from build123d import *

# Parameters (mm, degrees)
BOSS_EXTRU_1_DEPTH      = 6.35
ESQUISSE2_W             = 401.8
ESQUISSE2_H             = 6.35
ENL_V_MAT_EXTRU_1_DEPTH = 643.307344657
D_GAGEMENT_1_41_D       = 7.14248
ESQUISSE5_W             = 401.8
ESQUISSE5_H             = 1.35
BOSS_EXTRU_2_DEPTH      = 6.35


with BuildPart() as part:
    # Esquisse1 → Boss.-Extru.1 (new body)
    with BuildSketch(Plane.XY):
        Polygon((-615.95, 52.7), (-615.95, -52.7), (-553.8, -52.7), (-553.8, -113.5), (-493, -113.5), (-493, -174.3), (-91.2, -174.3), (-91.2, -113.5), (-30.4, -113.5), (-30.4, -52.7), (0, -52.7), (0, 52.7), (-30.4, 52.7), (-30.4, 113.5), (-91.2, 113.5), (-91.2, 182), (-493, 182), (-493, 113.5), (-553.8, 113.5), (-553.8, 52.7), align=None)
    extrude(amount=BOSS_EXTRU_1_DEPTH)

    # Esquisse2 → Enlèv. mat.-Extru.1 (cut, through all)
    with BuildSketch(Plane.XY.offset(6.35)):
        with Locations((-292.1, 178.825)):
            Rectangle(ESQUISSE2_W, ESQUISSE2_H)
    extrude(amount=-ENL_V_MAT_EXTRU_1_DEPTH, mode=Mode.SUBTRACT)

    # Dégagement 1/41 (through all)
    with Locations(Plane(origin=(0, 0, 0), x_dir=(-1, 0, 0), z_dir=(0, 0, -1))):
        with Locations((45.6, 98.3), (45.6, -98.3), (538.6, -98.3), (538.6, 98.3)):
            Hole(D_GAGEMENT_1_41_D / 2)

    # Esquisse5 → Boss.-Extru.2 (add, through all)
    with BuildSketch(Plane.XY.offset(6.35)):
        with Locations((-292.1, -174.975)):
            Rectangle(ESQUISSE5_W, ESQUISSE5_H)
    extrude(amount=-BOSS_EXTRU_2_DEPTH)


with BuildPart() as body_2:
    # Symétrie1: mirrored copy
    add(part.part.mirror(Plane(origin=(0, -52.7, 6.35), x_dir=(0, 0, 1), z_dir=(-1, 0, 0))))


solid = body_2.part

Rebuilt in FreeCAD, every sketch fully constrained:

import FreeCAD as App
import Part
import Sketcher
from FreeCAD import Vector

doc = App.newDocument("Part")
body = doc.addObject("PartDesign::Body", "Body")

sketch1 = body.newObject("Sketcher::SketchObject", "Sketch")
sketch1.AttachmentSupport = (doc.getObject("XY_Plane"), [""])
sketch1.MapMode = "FlatFace"
sketch1.addGeometry(Part.LineSegment(Vector(-615.95, 52.7, 0), Vector(-615.95, -52.7, 0)), False)
sketch1.addGeometry(Part.LineSegment(Vector(-615.95, -52.7, 0), Vector(-553.8, -52.7, 0)), False)
sketch1.addGeometry(Part.LineSegment(Vector(-553.8, -52.7, 0), Vector(-553.8, -113.5, 0)), False)
sketch1.addGeometry(Part.LineSegment(Vector(-553.8, -113.5, 0), Vector(-493, -113.5, 0)), False)
sketch1.addGeometry(Part.LineSegment(Vector(-493, -113.5, 0), Vector(-493, -174.3, 0)), False)
sketch1.addGeometry(Part.LineSegment(Vector(-493, -174.3, 0), Vector(-91.2, -174.3, 0)), False)
sketch1.addGeometry(Part.LineSegment(Vector(-91.2, -174.3, 0), Vector(-91.2, -113.5, 0)), False)
sketch1.addGeometry(Part.LineSegment(Vector(-91.2, -113.5, 0), Vector(-30.4, -113.5, 0)), False)
sketch1.addGeometry(Part.LineSegment(Vector(-30.4, -113.5, 0), Vector(-30.4, -52.7, 0)), False)
sketch1.addGeometry(Part.LineSegment(Vector(-30.4, -52.7, 0), Vector(0, -52.7, 0)), False)
sketch1.addGeometry(Part.LineSegment(Vector(0, -52.7, 0), Vector(0, 52.7, 0)), False)
sketch1.addGeometry(Part.LineSegment(Vector(0, 52.7, 0), Vector(-30.4, 52.7, 0)), False)
sketch1.addGeometry(Part.LineSegment(Vector(-30.4, 52.7, 0), Vector(-30.4, 113.5, 0)), False)
sketch1.addGeometry(Part.LineSegment(Vector(-30.4, 113.5, 0), Vector(-91.2, 113.5, 0)), False)
sketch1.addGeometry(Part.LineSegment(Vector(-91.2, 113.5, 0), Vector(-91.2, 182, 0)), False)
sketch1.addGeometry(Part.LineSegment(Vector(-91.2, 182, 0), Vector(-493, 182, 0)), False)
sketch1.addGeometry(Part.LineSegment(Vector(-493, 182, 0), Vector(-493, 113.5, 0)), False)
sketch1.addGeometry(Part.LineSegment(Vector(-493, 113.5, 0), Vector(-553.8, 113.5, 0)), False)
sketch1.addGeometry(Part.LineSegment(Vector(-553.8, 113.5, 0), Vector(-553.8, 52.7, 0)), False)
sketch1.addGeometry(Part.LineSegment(Vector(-553.8, 52.7, 0), Vector(-615.95, 52.7, 0)), False)
sketch1.addConstraint(Sketcher.Constraint("Coincident", 0, 2, 1, 1))
sketch1.addConstraint(Sketcher.Constraint("Coincident", 1, 2, 2, 1))
sketch1.addConstraint(Sketcher.Constraint("Coincident", 2, 2, 3, 1))
sketch1.addConstraint(Sketcher.Constraint("Coincident", 3, 2, 4, 1))
sketch1.addConstraint(Sketcher.Constraint("Coincident", 4, 2, 5, 1))
sketch1.addConstraint(Sketcher.Constraint("Coincident", 5, 2, 6, 1))
sketch1.addConstraint(Sketcher.Constraint("Coincident", 6, 2, 7, 1))
sketch1.addConstraint(Sketcher.Constraint("Coincident", 7, 2, 8, 1))
sketch1.addConstraint(Sketcher.Constraint("Coincident", 8, 2, 9, 1))
sketch1.addConstraint(Sketcher.Constraint("Coincident", 9, 2, 10, 1))
sketch1.addConstraint(Sketcher.Constraint("Coincident", 10, 2, 11, 1))
sketch1.addConstraint(Sketcher.Constraint("Coincident", 11, 2, 12, 1))
sketch1.addConstraint(Sketcher.Constraint("Coincident", 12, 2, 13, 1))
sketch1.addConstraint(Sketcher.Constraint("Coincident", 13, 2, 14, 1))
sketch1.addConstraint(Sketcher.Constraint("Coincident", 14, 2, 15, 1))
sketch1.addConstraint(Sketcher.Constraint("Coincident", 15, 2, 16, 1))
sketch1.addConstraint(Sketcher.Constraint("Coincident", 16, 2, 17, 1))
sketch1.addConstraint(Sketcher.Constraint("Coincident", 17, 2, 18, 1))
sketch1.addConstraint(Sketcher.Constraint("Coincident", 18, 2, 19, 1))
sketch1.addConstraint(Sketcher.Constraint("Coincident", 19, 2, 0, 1))
sketch1.addConstraint(Sketcher.Constraint("Vertical", 0))
sketch1.addConstraint(Sketcher.Constraint("Horizontal", 1))
sketch1.addConstraint(Sketcher.Constraint("Vertical", 2))
sketch1.addConstraint(Sketcher.Constraint("Horizontal", 3))
sketch1.addConstraint(Sketcher.Constraint("Vertical", 4))
sketch1.addConstraint(Sketcher.Constraint("Horizontal", 5))
sketch1.addConstraint(Sketcher.Constraint("Vertical", 6))
sketch1.addConstraint(Sketcher.Constraint("Horizontal", 7))
sketch1.addConstraint(Sketcher.Constraint("Vertical", 8))
sketch1.addConstraint(Sketcher.Constraint("Horizontal", 9))
sketch1.addConstraint(Sketcher.Constraint("Vertical", 10))
sketch1.addConstraint(Sketcher.Constraint("Horizontal", 11))
sketch1.addConstraint(Sketcher.Constraint("Vertical", 12))
sketch1.addConstraint(Sketcher.Constraint("Horizontal", 13))
sketch1.addConstraint(Sketcher.Constraint("Vertical", 14))
sketch1.addConstraint(Sketcher.Constraint("Horizontal", 15))
sketch1.addConstraint(Sketcher.Constraint("Vertical", 16))
sketch1.addConstraint(Sketcher.Constraint("Horizontal", 17))
sketch1.addConstraint(Sketcher.Constraint("Vertical", 18))
sketch1.addConstraint(Sketcher.Constraint("Horizontal", 19))
sketch1.addConstraint(Sketcher.Constraint("Symmetric", 9, 2, 10, 2, -1, 1))
sketch1.addConstraint(Sketcher.Constraint("Symmetric", 7, 2, 12, 2, -1))
sketch1.addConstraint(Sketcher.Constraint("Symmetric", 3, 2, 16, 2, -1))
sketch1.addConstraint(Sketcher.Constraint("Symmetric", 1, 2, 18, 2, -1))
sketch1.addConstraint(Sketcher.Constraint("Horizontal", 3, 2, 6, 2))
sketch1.addConstraint(Sketcher.Constraint("Horizontal", 1, 2, 8, 2))
sketch1.addConstraint(Sketcher.Constraint("Vertical", 6, 2, 13, 2))
sketch1.addConstraint(Sketcher.Constraint("Equal", 3, 7))
sketch1.addConstraint(Sketcher.Constraint("Equal", 17, 2))
sketch1.addConstraint(Sketcher.Constraint("Equal", 2, 4))
sketch1.addConstraint(Sketcher.Constraint("DistanceX", 3, 1, 3, 2, 60.8))
sketch1.addConstraint(Sketcher.Constraint("DistanceX", 5, 1, 5, 2, 401.8))
sketch1.addConstraint(Sketcher.Constraint("DistanceX", 9, 1, 9, 2, 30.4))
sketch1.addConstraint(Sketcher.Constraint("DistanceY", 0, 2, 0, 1, 105.4))
sketch1.addConstraint(Sketcher.Constraint("DistanceY", 14, 1, 14, 2, 68.5))
sketch1.addConstraint(Sketcher.Constraint("DistanceX", 1, 1, 1, 2, 62.15))
pad1 = body.newObject("PartDesign::Pad", "Pad")
pad1.Profile = sketch1
pad1.Length = 6.35

sketch2 = body.newObject("Sketcher::SketchObject", "Sketch001")
sketch2.AttachmentSupport = (doc.getObject("XY_Plane"), [""])
sketch2.MapMode = "FlatFace"
sketch2.AttachmentOffset = App.Placement(Vector(0, 0, 6.35), App.Rotation())
sketch2.addGeometry(Part.LineSegment(Vector(-493, 182, 0), Vector(-493, 175.65, 0)), False)
sketch2.addGeometry(Part.LineSegment(Vector(-493, 175.65, 0), Vector(-91.2, 175.65, 0)), False)
sketch2.addGeometry(Part.LineSegment(Vector(-91.2, 175.65, 0), Vector(-91.2, 182, 0)), False)
sketch2.addGeometry(Part.LineSegment(Vector(-91.2, 182, 0), Vector(-493, 182, 0)), False)
sketch2.addConstraint(Sketcher.Constraint("Coincident", 0, 2, 1, 1))
sketch2.addConstraint(Sketcher.Constraint("Coincident", 1, 2, 2, 1))
sketch2.addConstraint(Sketcher.Constraint("Coincident", 2, 2, 3, 1))
sketch2.addConstraint(Sketcher.Constraint("Coincident", 3, 2, 0, 1))
sketch2.addConstraint(Sketcher.Constraint("Vertical", 0))
sketch2.addConstraint(Sketcher.Constraint("Horizontal", 1))
sketch2.addConstraint(Sketcher.Constraint("Vertical", 2))
sketch2.addConstraint(Sketcher.Constraint("Horizontal", 3))
sketch2.addConstraint(Sketcher.Constraint("DistanceX", 1, 1, 1, 2, 401.8))
sketch2.addConstraint(Sketcher.Constraint("DistanceX", 0, 2, -1, 1, 493.0))
sketch2.addConstraint(Sketcher.Constraint("DistanceY", -1, 1, 2, 2, 182.0))
sketch2.addConstraint(Sketcher.Constraint("DistanceY", 0, 2, 0, 1, 6.35))
pocket1 = body.newObject("PartDesign::Pocket", "Pocket")
pocket1.Profile = sketch2
pocket1.Type = "ThroughAll"

sketch3 = body.newObject("Sketcher::SketchObject", "Sketch002")
sketch3.AttachmentSupport = (doc.getObject("XY_Plane"), [""])
sketch3.MapMode = "FlatFace"
sketch3.addGeometry(Part.Circle(Vector(-45.6, 98.3, 0), Vector(0, 0, 1), 3.57124), False)
sketch3.addGeometry(Part.Circle(Vector(-45.6, -98.3, 0), Vector(0, 0, 1), 3.57124), False)
sketch3.addGeometry(Part.Circle(Vector(-538.6, -98.3, 0), Vector(0, 0, 1), 3.57124), False)
sketch3.addGeometry(Part.Circle(Vector(-538.6, 98.3, 0), Vector(0, 0, 1), 3.57124), False)
sketch3.addConstraint(Sketcher.Constraint("Equal", 0, 1))
sketch3.addConstraint(Sketcher.Constraint("Equal", 1, 2))
sketch3.addConstraint(Sketcher.Constraint("Equal", 2, 3))
sketch3.addConstraint(Sketcher.Constraint("Symmetric", 0, 3, 1, 3, -1))
sketch3.addConstraint(Sketcher.Constraint("Symmetric", 2, 3, 3, 3, -1))
sketch3.addConstraint(Sketcher.Constraint("Horizontal", 1, 3, 2, 3))
sketch3.addConstraint(Sketcher.Constraint("DistanceX", 2, 3, 1, 3, 493.0))
sketch3.addConstraint(Sketcher.Constraint("DistanceX", 0, 3, -1, 1, 45.6))
sketch3.addConstraint(Sketcher.Constraint("DistanceY", -1, 1, 0, 3, 98.3))
sketch3.addConstraint(Sketcher.Constraint("Diameter", 0, 7.14248))
doc.recompute()
hole = body.newObject("PartDesign::Hole", "Hole")
hole.Profile = sketch3
hole.ThreadType = "None"
hole.Diameter = 7.14248
hole.DepthType = "ThroughAll"
hole.Reversed = True

sketch4 = body.newObject("Sketcher::SketchObject", "Sketch003")
sketch4.AttachmentSupport = (doc.getObject("XY_Plane"), [""])
sketch4.MapMode = "FlatFace"
sketch4.AttachmentOffset = App.Placement(Vector(0, 0, 6.35), App.Rotation())
sketch4.addGeometry(Part.LineSegment(Vector(-493, -174.3, 0), Vector(-493, -175.65, 0)), False)
sketch4.addGeometry(Part.LineSegment(Vector(-493, -175.65, 0), Vector(-91.2, -175.65, 0)), False)
sketch4.addGeometry(Part.LineSegment(Vector(-91.2, -175.65, 0), Vector(-91.2, -174.3, 0)), False)
sketch4.addGeometry(Part.LineSegment(Vector(-91.2, -174.3, 0), Vector(-493, -174.3, 0)), False)
sketch4.addConstraint(Sketcher.Constraint("Coincident", 0, 2, 1, 1))
sketch4.addConstraint(Sketcher.Constraint("Coincident", 1, 2, 2, 1))
sketch4.addConstraint(Sketcher.Constraint("Coincident", 2, 2, 3, 1))
sketch4.addConstraint(Sketcher.Constraint("Coincident", 3, 2, 0, 1))
sketch4.addConstraint(Sketcher.Constraint("Vertical", 0))
sketch4.addConstraint(Sketcher.Constraint("Horizontal", 1))
sketch4.addConstraint(Sketcher.Constraint("Vertical", 2))
sketch4.addConstraint(Sketcher.Constraint("Horizontal", 3))
sketch4.addConstraint(Sketcher.Constraint("DistanceX", 1, 1, 1, 2, 401.8))
sketch4.addConstraint(Sketcher.Constraint("DistanceX", 0, 2, -1, 1, 493.0))
sketch4.addConstraint(Sketcher.Constraint("DistanceY", 0, 2, 0, 1, 1.35))
sketch4.addConstraint(Sketcher.Constraint("DistanceY", 2, 2, -1, 1, 174.3))
pad2 = body.newObject("PartDesign::Pad", "Pad001")
pad2.Profile = sketch4
pad2.Length = 6.35
pad2.Reversed = True
body2 = doc.addObject("PartDesign::Body", "Body001")
doc.recompute()

mirroring = doc.addObject("Part::Mirroring", "Mirroring")
mirroring.Source = body
mirroring.Base = Vector(0, -52.7, 6.35)
mirroring.Normal = Vector(-1, 0, 0)
body2.BaseFeature = mirroring
doc.recompute()
body.Visibility = False
mirroring.Visibility = False

doc.recompute()
